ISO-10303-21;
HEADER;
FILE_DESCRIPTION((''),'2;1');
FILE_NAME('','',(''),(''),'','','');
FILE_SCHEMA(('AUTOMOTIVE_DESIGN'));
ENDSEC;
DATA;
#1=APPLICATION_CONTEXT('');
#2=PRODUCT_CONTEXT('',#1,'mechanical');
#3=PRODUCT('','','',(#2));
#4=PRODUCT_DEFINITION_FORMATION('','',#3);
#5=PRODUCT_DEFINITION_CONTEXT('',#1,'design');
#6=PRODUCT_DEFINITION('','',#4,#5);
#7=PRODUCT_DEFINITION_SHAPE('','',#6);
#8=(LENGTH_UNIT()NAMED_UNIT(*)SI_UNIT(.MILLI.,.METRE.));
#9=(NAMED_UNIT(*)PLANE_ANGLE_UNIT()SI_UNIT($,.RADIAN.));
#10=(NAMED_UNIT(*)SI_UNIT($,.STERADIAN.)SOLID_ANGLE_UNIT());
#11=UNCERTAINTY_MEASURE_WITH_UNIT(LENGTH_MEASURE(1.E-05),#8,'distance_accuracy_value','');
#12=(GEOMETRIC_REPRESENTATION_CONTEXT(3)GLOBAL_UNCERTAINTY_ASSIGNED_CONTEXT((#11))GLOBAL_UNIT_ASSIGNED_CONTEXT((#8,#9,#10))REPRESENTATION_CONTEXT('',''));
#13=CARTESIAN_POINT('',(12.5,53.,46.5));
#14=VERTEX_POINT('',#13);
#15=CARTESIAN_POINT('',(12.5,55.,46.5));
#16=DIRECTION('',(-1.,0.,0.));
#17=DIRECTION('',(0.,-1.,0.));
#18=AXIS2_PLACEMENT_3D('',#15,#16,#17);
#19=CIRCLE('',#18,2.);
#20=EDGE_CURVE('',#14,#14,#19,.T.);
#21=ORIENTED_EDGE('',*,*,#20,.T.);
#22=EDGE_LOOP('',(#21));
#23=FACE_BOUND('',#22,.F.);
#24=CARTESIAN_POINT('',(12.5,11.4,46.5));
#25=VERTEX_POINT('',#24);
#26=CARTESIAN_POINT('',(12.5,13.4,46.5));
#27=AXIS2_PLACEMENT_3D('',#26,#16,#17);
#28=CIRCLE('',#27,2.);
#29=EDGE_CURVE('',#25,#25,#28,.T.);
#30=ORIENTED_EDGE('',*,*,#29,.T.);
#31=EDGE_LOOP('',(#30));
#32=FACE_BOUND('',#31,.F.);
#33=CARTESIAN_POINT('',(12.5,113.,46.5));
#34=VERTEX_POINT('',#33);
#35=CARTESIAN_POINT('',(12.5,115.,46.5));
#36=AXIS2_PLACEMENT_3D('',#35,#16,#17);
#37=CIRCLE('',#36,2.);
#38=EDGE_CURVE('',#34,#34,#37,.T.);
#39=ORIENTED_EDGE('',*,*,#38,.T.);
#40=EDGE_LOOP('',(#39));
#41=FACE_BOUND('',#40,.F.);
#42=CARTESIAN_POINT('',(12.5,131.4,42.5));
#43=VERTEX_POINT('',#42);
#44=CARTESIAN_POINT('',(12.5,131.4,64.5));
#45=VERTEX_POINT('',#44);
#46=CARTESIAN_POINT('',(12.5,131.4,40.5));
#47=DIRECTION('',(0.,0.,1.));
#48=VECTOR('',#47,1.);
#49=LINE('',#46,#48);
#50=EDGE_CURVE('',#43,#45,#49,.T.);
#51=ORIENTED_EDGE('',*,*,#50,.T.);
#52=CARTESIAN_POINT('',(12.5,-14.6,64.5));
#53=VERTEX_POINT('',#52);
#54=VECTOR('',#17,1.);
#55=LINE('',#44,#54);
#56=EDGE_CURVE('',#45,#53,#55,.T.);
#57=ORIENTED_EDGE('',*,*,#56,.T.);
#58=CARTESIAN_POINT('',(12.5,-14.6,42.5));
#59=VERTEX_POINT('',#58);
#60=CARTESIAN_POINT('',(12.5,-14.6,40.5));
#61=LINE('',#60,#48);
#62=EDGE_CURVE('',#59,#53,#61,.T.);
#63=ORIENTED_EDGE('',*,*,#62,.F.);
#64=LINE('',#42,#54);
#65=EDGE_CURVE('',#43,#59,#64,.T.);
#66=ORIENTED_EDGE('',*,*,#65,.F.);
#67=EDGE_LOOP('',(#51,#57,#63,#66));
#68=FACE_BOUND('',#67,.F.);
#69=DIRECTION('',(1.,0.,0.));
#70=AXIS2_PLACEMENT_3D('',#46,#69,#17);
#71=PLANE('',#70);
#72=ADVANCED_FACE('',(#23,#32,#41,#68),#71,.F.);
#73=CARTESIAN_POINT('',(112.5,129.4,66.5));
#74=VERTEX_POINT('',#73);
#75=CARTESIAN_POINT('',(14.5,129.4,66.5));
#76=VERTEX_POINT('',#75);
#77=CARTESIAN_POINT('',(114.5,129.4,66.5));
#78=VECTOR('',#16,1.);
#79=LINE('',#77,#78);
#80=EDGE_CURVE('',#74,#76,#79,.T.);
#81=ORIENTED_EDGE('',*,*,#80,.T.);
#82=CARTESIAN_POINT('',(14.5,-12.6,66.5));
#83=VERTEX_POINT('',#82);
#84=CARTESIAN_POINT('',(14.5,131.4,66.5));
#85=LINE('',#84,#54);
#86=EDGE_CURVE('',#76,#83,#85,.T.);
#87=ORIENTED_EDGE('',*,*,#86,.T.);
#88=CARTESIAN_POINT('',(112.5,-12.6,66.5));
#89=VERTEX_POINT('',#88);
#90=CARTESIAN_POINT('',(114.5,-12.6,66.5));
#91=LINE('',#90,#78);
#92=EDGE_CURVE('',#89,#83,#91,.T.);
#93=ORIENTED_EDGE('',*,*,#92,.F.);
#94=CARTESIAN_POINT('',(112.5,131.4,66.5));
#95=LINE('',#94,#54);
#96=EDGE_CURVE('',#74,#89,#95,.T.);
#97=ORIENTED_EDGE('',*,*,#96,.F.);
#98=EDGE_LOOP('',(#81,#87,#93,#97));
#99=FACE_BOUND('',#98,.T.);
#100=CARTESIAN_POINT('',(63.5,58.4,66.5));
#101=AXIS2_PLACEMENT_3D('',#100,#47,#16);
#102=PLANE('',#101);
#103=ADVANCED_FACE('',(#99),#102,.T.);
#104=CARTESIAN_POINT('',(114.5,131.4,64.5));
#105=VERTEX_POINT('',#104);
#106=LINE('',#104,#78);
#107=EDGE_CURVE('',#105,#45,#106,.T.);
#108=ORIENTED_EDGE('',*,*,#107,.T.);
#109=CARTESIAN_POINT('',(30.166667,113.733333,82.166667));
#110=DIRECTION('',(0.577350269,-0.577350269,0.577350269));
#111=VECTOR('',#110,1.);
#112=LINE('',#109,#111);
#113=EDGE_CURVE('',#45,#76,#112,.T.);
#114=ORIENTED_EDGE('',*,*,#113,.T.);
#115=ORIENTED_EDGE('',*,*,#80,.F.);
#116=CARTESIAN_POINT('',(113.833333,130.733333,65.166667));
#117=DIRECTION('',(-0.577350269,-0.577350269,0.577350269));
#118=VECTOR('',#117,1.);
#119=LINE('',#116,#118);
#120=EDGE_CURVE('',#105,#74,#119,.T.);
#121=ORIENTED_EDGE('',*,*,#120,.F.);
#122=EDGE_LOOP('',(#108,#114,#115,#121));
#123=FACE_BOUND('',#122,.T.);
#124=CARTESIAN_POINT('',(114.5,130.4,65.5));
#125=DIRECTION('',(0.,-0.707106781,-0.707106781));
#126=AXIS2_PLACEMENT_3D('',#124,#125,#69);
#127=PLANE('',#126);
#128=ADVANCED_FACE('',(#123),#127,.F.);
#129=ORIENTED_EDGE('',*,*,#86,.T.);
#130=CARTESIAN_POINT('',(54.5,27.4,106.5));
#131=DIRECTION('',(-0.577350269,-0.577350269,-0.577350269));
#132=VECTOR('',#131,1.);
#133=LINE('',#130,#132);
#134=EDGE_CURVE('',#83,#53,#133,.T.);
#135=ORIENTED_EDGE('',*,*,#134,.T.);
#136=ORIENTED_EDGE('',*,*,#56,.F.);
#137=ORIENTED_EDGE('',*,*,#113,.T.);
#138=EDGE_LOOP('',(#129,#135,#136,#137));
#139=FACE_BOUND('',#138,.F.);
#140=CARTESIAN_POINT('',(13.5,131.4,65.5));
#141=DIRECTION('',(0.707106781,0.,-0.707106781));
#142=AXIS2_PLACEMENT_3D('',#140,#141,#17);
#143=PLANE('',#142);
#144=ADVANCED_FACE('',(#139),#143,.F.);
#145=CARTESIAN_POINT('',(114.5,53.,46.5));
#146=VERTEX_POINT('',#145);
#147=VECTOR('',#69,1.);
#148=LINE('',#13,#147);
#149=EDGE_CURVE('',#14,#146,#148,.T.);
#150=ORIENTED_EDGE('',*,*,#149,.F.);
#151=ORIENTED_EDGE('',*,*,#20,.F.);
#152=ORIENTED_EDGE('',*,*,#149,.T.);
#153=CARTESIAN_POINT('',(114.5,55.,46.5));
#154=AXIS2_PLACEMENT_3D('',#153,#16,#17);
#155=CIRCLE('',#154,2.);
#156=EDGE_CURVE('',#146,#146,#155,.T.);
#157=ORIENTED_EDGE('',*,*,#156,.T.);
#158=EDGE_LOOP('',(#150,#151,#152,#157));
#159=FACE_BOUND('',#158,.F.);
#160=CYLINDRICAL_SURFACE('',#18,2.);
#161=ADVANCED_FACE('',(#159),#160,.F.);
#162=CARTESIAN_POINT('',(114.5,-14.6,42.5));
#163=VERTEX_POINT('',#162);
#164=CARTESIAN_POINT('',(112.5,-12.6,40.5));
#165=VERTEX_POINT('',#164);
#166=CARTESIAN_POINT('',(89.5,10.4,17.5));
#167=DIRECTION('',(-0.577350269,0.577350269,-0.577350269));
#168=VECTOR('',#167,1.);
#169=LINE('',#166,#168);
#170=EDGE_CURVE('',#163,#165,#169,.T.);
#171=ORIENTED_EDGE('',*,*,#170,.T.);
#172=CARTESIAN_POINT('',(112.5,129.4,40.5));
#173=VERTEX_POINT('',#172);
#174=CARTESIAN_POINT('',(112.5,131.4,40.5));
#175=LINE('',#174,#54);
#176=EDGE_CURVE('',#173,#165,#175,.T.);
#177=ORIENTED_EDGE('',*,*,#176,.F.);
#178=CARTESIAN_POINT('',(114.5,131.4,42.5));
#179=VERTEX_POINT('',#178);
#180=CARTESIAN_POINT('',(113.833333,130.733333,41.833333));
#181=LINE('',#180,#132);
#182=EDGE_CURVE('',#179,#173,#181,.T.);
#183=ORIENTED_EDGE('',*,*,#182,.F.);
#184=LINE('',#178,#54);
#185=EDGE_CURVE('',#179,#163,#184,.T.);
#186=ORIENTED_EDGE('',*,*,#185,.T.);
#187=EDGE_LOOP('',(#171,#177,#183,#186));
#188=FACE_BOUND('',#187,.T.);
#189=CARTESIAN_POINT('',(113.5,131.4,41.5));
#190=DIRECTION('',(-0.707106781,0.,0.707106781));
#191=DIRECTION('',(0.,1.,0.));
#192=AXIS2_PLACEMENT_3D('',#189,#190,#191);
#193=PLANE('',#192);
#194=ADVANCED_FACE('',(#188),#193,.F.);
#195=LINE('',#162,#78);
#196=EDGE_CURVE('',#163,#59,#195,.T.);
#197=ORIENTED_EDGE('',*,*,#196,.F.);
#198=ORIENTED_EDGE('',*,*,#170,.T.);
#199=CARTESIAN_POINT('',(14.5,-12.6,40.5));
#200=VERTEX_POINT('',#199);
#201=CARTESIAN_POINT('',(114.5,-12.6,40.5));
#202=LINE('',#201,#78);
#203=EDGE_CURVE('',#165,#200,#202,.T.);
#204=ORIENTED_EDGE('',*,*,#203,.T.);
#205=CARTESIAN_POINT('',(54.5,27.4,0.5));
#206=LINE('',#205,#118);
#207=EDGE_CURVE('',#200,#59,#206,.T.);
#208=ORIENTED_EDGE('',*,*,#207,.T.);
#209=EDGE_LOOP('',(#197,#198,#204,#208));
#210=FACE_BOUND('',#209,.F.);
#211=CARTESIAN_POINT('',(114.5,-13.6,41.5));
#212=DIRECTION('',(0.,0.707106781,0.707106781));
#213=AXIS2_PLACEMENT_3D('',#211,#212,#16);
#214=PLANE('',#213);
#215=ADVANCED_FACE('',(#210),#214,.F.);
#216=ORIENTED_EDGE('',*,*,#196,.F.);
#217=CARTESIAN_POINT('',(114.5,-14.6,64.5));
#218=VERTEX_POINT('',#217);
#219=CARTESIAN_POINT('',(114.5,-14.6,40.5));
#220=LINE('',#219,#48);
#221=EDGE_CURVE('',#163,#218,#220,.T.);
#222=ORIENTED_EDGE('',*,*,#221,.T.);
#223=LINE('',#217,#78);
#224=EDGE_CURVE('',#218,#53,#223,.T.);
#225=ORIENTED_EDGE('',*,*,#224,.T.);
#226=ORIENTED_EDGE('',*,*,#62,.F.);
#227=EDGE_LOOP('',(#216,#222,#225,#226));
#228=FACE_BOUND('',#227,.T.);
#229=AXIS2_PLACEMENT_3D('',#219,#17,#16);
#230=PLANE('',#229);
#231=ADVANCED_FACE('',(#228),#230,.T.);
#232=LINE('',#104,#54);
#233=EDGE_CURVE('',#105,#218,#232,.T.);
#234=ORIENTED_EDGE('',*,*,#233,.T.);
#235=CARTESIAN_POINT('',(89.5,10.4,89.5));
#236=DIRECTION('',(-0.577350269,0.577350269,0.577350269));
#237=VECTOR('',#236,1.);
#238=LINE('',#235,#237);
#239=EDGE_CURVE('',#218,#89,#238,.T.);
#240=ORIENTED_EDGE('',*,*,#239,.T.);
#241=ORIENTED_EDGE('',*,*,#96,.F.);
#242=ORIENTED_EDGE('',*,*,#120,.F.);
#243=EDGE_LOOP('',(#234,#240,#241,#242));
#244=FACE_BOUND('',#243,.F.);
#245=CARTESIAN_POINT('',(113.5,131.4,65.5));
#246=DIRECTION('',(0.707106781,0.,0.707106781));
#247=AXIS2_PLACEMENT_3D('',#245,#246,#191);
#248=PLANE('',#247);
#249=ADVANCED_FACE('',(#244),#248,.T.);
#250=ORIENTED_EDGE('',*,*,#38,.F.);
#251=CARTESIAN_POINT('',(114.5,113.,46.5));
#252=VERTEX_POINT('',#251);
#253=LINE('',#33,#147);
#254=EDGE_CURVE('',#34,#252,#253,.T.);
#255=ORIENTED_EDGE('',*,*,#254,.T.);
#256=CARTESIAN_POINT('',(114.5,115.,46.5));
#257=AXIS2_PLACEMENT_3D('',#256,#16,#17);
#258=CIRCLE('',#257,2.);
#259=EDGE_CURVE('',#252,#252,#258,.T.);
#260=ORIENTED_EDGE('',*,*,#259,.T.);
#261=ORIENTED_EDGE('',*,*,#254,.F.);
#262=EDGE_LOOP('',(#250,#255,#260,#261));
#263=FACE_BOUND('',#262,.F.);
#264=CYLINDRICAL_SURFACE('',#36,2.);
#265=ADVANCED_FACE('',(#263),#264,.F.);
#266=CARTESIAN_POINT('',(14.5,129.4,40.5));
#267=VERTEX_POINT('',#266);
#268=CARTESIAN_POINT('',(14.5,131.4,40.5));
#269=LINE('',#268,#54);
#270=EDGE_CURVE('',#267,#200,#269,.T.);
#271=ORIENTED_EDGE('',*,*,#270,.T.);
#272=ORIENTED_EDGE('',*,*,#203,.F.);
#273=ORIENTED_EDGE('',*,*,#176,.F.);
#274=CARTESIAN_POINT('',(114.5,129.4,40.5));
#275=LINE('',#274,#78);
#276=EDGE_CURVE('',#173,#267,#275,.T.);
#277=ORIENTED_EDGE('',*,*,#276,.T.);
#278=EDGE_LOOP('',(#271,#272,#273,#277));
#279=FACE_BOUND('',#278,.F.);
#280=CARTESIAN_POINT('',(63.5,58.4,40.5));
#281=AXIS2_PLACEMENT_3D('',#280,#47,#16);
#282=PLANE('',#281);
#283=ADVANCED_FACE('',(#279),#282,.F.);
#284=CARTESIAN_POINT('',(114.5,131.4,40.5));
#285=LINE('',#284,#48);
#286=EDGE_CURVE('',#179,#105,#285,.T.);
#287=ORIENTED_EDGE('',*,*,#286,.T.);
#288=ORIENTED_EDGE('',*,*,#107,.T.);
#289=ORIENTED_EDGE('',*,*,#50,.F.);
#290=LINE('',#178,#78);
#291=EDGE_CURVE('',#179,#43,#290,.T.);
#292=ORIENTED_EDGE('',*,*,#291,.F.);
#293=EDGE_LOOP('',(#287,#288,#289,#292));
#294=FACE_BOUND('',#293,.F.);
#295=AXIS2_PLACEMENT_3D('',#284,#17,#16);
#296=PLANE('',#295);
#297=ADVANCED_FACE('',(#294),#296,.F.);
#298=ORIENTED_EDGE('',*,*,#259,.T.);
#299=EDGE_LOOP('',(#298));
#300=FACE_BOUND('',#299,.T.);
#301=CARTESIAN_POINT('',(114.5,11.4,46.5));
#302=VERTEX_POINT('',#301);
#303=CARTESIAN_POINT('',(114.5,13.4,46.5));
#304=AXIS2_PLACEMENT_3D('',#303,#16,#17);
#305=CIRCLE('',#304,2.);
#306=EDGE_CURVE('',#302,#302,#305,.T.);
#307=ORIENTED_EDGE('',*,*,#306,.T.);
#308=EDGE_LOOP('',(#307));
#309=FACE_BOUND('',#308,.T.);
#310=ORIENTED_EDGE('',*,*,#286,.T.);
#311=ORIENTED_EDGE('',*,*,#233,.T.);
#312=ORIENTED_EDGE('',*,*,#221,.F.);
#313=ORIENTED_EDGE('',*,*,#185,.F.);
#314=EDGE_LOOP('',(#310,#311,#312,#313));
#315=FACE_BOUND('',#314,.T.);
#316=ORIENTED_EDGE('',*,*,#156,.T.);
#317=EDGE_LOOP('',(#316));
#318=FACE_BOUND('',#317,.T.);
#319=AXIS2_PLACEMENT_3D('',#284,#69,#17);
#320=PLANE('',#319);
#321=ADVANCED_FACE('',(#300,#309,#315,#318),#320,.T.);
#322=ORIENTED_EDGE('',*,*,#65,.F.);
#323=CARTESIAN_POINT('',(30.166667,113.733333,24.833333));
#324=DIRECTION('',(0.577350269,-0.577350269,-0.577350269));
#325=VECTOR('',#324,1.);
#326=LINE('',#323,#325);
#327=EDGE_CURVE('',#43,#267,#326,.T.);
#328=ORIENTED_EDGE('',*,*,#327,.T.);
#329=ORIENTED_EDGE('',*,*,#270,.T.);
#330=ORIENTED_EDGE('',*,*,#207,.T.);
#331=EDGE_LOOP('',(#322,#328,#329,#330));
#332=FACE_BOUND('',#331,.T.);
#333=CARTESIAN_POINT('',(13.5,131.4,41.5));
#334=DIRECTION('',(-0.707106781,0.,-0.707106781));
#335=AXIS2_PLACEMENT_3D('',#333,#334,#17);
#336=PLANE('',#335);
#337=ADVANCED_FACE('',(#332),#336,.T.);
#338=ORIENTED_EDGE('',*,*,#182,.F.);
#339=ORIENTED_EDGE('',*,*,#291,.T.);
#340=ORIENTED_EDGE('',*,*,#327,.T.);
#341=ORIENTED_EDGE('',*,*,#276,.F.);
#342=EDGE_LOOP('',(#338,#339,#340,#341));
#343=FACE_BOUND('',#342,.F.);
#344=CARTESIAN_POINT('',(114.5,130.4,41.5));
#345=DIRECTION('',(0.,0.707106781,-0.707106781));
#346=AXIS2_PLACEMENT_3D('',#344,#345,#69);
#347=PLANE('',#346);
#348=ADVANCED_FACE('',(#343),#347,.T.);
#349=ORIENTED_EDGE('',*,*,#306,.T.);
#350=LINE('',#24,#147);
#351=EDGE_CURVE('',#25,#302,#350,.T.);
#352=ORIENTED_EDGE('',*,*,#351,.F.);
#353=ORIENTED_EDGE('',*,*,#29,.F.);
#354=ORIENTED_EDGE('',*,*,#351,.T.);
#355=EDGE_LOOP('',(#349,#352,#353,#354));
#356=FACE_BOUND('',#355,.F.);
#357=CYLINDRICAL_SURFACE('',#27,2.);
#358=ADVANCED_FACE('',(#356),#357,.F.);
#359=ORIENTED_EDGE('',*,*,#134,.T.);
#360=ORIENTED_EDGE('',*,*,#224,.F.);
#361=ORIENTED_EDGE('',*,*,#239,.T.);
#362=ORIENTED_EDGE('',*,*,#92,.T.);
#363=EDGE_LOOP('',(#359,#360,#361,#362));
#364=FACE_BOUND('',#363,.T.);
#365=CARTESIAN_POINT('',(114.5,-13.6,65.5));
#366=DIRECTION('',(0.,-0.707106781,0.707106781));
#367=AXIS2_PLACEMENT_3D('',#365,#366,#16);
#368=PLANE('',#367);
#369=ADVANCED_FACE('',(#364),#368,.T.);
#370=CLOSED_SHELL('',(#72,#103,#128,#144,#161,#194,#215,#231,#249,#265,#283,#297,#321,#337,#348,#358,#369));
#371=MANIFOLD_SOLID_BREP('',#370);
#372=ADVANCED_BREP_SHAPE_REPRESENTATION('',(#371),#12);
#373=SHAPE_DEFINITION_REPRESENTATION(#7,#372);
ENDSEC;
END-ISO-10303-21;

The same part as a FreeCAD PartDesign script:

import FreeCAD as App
import Part
import Sketcher

V = App.Vector
Q = App.Units.Quantity


def edges_at(feature, points):
    """Names of the edges that pass closest to the given points."""
    edges = feature.Shape.Edges
    near = lambda p: min(range(len(edges)), key=lambda i: edges[i].distToShape(Part.Vertex(*p))[0])
    return sorted({f"Edge{near(p) + 1}" for p in points})

doc = App.newDocument("Part")
params = doc.addObject("Spreadsheet::Sheet", "Params")
for row, (alias, value) in enumerate([
    ("sketch1_width", "102 mm"),
    ("sketch1_height", "146 mm"),
    ("pad1_length", "26 mm"),
    ("sketch2_diameter", "4 mm"),
    ("chamfer_size", "2 mm"),
], start=1):
    params.set(f"A{row}", alias)
    params.set(f"B{row}", "=" + value)
    params.setAlias(f"B{row}", alias)

body = doc.addObject("PartDesign::Body", "Body")

# Sketch on XY plane
sketch1 = body.newObject("Sketcher::SketchObject", "Sketch")
sketch1.AttachmentSupport = (doc.getObject("XY_Plane"), [""])
sketch1.MapMode = "FlatFace"
sketch1.addGeometry([
    Part.LineSegment(V(-51, 73, 0), V(-51, -73, 0)),
    Part.LineSegment(V(-51, -73, 0), V(51, -73, 0)),
    Part.LineSegment(V(51, -73, 0), V(51, 73, 0)),
    Part.LineSegment(V(51, 73, 0), V(-51, 73, 0)),
], False)
sketch1.addConstraint([
    Sketcher.Constraint("Coincident", 0, 2, 1, 1),
    Sketcher.Constraint("Coincident", 1, 2, 2, 1),
    Sketcher.Constraint("Coincident", 2, 2, 3, 1),
    Sketcher.Constraint("Coincident", 3, 2, 0, 1),
    Sketcher.Constraint("Vertical", 0),
    Sketcher.Constraint("Horizontal", 1),
    Sketcher.Constraint("Vertical", 2),
    Sketcher.Constraint("Horizontal", 3),
    Sketcher.Constraint("Symmetric", 0, 2, 2, 2, -1, 1),
    Sketcher.Constraint("DistanceX", 1, 1, 1, 2, Q("102 mm")),
    Sketcher.Constraint("DistanceY", 0, 2, 0, 1, Q("146 mm")),
])
sketch1.setExpression("Constraints[9]", "Params.sketch1_width")
sketch1.setExpression("Constraints[10]", "Params.sketch1_height")
pad1 = body.newObject("PartDesign::Pad", "Pad")
pad1.Profile = sketch1
pad1.setExpression("Length", "Params.pad1_length")

# Sketch on YZ plane
sketch2 = body.newObject("Sketcher::SketchObject", "Sketch001")
sketch2.AttachmentSupport = (doc.getObject("YZ_Plane"), [""])
sketch2.MapMode = "FlatFace"
sketch2.AttachmentOffset = App.Placement(V(0, 0, 51), App.Rotation())
sketch2.addGeometry([
    Part.Circle(V(45, 6, 0), V(0, 0, 1), 2),
    Part.Circle(V(3.4, 6, 0), V(0, 0, 1), 2),
    Part.Circle(V(-56.6, 6, 0), V(0, 0, 1), 2),
], False)
sketch2.addConstraint([
    Sketcher.Constraint("Equal", 0, 1),
    Sketcher.Constraint("Equal", 1, 2),
    Sketcher.Constraint("Horizontal", 0, 3, 1, 3),
    Sketcher.Constraint("Horizontal", 1, 3, 2, 3),
    Sketcher.Constraint("Diameter", 0, Q("4 mm")),
    Sketcher.Constraint("DistanceX", -1, 1, 0, 3, Q("45 mm")),
    Sketcher.Constraint("DistanceY", -1, 1, 0, 3, Q("6 mm")),
    Sketcher.Constraint("DistanceX", 2, 3, 1, 3, Q("60 mm")),
    Sketcher.Constraint("DistanceX", -1, 1, 1, 3, Q("3.4 mm")),
])
sketch2.setExpression("Constraints[4]", "Params.sketch2_diameter")
pocket1 = body.newObject("PartDesign::Pocket", "Pocket")
pocket1.Profile = sketch2
pocket1.Type = "ThroughAll"
doc.recompute()

chamfer = body.newObject("PartDesign::Chamfer", "Chamfer")
chamfer.Base = (pocket1, edges_at(pocket1, [
    (-51, 0, 0),
    (0, -73, 0),
    (51, 0, 0),
    (0, 73, 0),
    (-51, 0, 26),
    (0, -73, 26),
    (51, 0, 26),
    (0, 73, 26),
]))
chamfer.setExpression("Size", "Params.chamfer_size")
body2 = doc.addObject("PartDesign::Body", "Body001")
doc.recompute()

body.Placement = App.Placement(V(63.5, 58.4, 40.5), App.Rotation(V(0, 0, 1), 180))
boolean = body2.newObject("PartDesign::Boolean", "Boolean")
boolean.Type = "Fuse"
boolean.addObjects([body])

doc.recompute()
